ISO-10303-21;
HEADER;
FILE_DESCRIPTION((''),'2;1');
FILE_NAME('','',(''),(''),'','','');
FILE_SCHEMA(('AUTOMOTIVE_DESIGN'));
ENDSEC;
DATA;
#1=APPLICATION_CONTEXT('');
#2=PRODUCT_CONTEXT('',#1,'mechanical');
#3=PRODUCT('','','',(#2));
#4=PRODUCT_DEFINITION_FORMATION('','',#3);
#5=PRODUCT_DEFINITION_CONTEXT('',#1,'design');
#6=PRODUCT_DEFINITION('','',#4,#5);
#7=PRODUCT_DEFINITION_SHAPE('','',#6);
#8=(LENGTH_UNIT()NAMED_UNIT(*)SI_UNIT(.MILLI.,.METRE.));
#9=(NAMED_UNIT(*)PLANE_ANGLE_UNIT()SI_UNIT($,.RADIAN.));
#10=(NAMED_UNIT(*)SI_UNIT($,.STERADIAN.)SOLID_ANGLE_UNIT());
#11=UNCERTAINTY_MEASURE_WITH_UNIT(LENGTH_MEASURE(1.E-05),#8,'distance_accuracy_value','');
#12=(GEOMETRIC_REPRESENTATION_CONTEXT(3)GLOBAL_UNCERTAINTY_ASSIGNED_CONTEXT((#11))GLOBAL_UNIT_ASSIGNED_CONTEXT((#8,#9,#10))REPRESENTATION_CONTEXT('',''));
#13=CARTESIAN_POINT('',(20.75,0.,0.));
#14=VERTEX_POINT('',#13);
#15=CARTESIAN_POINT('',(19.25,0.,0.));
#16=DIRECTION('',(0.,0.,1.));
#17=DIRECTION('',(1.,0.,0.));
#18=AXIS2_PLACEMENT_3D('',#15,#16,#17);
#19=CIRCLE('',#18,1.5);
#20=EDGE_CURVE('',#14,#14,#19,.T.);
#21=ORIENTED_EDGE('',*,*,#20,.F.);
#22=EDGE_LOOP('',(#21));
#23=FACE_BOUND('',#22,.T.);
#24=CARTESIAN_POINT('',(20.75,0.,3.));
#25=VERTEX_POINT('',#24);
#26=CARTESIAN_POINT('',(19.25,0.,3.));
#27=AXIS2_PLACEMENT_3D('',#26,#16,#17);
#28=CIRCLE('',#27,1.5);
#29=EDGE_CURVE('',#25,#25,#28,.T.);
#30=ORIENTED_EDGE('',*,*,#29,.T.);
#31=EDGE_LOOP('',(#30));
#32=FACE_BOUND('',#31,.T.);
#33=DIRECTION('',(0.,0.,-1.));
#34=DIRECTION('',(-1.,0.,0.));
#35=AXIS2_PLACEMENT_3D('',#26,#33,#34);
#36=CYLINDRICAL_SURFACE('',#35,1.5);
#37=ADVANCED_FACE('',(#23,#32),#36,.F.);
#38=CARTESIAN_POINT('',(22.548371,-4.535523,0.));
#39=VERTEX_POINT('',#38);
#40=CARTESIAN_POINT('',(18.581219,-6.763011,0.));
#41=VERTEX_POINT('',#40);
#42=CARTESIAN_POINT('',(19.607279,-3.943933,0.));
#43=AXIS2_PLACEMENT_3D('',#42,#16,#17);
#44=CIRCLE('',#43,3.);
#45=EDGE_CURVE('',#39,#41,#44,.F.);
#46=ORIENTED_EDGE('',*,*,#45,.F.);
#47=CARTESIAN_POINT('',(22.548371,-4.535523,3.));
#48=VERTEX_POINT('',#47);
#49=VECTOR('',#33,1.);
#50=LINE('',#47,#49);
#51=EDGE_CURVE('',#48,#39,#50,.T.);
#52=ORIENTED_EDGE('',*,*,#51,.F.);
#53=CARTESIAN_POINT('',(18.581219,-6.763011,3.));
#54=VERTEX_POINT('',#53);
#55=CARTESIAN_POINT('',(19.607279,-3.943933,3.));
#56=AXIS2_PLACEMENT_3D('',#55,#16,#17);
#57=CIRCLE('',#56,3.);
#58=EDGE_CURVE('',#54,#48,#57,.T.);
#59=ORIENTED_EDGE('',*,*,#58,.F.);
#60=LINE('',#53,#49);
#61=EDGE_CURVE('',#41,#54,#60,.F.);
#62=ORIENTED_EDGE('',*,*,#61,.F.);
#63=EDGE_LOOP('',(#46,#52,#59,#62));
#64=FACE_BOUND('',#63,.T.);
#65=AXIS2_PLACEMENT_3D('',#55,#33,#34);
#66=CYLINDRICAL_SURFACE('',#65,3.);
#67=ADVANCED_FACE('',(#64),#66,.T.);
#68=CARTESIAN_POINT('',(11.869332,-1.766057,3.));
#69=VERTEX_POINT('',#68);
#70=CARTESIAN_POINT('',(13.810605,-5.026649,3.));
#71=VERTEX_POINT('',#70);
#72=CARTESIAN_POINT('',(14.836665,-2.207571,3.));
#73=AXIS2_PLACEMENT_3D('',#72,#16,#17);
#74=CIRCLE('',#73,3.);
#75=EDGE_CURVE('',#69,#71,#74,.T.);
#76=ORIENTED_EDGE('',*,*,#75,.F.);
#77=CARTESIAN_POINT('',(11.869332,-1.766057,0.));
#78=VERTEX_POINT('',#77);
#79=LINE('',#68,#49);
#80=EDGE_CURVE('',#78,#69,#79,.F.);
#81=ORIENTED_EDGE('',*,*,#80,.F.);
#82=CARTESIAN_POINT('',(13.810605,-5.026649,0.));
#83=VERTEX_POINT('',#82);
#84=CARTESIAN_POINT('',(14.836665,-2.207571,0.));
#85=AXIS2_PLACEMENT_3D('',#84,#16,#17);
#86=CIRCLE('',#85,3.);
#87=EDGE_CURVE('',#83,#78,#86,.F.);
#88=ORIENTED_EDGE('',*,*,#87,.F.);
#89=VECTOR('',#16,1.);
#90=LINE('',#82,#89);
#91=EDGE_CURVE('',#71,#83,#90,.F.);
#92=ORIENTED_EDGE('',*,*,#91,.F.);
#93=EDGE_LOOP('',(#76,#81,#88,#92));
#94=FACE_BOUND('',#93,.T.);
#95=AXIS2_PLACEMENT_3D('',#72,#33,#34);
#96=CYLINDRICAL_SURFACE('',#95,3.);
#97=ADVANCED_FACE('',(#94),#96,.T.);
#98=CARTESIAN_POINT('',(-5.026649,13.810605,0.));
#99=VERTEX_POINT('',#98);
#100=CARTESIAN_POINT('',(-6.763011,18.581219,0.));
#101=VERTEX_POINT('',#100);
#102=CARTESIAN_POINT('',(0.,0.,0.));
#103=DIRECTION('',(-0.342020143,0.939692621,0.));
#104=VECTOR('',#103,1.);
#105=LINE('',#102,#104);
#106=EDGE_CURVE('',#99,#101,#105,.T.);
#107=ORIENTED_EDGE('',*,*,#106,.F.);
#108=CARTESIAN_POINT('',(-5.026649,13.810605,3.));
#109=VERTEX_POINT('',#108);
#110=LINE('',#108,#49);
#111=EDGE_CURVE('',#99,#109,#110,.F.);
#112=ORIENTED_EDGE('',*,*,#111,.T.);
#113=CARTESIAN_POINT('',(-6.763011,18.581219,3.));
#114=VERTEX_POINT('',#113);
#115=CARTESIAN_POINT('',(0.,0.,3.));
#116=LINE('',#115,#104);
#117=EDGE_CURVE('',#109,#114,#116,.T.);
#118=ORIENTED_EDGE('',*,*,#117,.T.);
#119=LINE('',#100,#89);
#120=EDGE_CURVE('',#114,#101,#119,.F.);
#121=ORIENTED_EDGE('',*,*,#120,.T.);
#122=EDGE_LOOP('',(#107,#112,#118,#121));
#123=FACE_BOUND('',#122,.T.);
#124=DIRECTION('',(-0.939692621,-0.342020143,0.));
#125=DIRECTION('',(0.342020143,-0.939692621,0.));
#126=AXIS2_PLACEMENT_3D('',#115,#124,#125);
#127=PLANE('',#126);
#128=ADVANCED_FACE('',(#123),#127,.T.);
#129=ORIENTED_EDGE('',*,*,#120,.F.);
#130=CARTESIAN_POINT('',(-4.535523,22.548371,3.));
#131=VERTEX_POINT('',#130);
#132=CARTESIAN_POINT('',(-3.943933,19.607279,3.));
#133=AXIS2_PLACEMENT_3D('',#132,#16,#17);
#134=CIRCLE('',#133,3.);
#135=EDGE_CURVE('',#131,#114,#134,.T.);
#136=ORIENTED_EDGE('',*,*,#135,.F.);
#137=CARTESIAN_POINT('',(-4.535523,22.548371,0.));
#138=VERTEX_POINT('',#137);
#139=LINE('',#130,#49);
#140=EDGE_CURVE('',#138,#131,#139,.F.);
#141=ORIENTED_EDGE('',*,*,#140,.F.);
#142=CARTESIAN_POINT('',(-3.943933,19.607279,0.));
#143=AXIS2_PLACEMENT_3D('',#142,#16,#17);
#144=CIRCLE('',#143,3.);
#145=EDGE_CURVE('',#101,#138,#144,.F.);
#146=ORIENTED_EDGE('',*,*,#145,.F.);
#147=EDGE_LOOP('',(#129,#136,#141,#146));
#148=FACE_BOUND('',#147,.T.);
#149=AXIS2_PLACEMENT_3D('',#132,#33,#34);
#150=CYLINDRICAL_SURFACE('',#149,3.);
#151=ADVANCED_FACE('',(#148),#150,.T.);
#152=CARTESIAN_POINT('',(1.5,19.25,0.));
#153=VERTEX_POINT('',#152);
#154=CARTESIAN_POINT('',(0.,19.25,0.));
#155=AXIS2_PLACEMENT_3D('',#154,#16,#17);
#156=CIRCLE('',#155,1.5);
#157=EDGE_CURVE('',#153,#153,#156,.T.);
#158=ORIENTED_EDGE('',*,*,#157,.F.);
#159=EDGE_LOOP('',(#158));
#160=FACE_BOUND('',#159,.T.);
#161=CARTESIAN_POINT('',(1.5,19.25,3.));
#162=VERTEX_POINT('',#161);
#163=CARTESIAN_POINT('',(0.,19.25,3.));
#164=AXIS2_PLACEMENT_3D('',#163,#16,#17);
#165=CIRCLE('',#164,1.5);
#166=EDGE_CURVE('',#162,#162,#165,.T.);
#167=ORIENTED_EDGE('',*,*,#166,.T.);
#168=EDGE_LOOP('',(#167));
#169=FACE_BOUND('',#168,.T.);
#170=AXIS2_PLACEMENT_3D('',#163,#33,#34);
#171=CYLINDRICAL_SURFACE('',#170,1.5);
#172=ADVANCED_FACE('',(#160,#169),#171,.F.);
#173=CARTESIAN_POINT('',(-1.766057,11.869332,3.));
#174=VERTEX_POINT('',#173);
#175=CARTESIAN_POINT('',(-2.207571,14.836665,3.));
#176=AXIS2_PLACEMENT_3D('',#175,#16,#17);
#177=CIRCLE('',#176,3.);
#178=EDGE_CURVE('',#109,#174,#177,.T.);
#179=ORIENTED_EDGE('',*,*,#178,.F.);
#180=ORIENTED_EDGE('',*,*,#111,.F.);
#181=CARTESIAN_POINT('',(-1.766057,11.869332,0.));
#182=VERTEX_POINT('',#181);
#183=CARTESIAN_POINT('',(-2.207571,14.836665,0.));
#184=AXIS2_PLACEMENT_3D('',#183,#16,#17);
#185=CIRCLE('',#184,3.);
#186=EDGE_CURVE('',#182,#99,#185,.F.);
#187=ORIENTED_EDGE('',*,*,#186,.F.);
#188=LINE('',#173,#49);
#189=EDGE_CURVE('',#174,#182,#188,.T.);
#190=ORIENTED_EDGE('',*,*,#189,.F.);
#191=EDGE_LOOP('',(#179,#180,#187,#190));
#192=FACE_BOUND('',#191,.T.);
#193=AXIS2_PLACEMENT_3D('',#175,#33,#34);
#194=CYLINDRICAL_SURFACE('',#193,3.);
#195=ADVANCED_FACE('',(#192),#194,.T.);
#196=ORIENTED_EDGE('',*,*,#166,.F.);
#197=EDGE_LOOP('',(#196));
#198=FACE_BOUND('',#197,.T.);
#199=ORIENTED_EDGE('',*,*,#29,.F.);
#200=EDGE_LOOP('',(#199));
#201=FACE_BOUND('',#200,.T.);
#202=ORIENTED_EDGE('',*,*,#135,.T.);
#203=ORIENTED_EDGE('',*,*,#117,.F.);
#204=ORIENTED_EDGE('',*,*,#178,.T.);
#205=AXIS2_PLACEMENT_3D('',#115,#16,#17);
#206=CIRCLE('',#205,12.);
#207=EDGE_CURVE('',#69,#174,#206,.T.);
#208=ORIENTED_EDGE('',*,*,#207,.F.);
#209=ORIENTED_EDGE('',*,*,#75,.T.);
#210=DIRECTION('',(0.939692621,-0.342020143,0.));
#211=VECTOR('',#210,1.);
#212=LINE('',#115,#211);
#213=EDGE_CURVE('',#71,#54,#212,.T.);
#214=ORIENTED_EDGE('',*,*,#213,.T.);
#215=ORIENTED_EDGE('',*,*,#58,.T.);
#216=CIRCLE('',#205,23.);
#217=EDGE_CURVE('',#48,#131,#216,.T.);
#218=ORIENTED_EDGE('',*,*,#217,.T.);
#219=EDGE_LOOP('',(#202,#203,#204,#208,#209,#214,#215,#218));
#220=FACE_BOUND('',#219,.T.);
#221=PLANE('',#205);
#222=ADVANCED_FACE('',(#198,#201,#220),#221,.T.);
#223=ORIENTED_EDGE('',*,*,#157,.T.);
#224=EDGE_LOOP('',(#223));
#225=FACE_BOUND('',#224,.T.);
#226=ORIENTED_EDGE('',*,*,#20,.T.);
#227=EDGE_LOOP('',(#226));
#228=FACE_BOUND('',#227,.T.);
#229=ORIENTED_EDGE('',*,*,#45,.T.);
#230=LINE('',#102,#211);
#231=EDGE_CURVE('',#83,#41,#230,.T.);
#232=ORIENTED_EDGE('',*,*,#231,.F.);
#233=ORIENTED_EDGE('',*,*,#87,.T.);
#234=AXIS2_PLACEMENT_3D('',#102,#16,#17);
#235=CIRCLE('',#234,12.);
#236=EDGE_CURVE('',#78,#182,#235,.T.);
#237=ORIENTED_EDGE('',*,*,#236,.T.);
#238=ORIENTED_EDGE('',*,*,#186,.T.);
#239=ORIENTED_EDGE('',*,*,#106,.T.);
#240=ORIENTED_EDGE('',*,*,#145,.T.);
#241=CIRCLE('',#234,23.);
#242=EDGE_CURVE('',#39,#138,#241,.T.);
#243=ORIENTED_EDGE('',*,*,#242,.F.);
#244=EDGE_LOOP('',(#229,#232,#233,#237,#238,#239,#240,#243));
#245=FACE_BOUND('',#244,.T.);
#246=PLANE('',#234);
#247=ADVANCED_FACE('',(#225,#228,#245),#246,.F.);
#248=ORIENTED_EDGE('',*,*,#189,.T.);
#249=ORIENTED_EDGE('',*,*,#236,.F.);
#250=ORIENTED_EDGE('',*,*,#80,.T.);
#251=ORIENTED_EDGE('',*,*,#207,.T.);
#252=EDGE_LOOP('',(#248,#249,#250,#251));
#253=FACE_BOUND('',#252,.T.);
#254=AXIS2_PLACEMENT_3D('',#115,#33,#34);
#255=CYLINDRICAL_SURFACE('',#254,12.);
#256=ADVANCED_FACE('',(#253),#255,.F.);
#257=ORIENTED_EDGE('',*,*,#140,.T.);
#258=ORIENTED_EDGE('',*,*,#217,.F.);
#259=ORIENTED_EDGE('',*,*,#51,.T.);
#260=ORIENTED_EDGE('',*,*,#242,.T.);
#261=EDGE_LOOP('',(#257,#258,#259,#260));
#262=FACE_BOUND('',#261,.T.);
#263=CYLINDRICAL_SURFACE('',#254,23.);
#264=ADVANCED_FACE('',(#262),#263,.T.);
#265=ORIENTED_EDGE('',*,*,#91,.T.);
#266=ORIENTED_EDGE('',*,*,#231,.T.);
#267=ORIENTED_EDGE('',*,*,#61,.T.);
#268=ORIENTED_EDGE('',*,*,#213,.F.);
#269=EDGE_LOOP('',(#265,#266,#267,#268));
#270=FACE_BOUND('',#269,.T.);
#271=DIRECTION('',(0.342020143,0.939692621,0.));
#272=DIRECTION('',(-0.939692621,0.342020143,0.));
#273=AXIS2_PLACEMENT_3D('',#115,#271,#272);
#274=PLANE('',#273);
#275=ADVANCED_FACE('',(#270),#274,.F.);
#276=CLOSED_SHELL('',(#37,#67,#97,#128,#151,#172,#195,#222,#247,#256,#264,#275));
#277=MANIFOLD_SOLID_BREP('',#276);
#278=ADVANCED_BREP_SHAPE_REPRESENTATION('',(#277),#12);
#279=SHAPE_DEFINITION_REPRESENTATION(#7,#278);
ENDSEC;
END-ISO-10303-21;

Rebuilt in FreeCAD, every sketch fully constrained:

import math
import FreeCAD as App
import Part
import Sketcher

V = App.Vector
Q = App.Units.Quantity


def edges_at(feature, points):
    """Names of the edges that pass closest to the given points."""
    edges = feature.Shape.Edges
    near = lambda p: min(range(len(edges)), key=lambda i: edges[i].distToShape(Part.Vertex(*p))[0])
    return sorted({f"Edge{near(p) + 1}" for p in points})

doc = App.newDocument("Part")
body = doc.addObject("PartDesign::Body", "Body")

sketch1 = body.newObject("Sketcher::SketchObject", "Sketch")
sketch1.AttachmentSupport = (doc.getObject("XY_Plane"), [""])
sketch1.MapMode = "FlatFace"
sketch1.addGeometry([
    Part.LineSegment(V(-7.9, 21.6, 0), V(-4.1, 11.3, 0)),
    Part.ArcOfCircle(Part.Circle(V(0, 0, 0), V(0, 0, 1), 12), math.radians(0), math.radians(110)),
    Part.ArcOfCircle(Part.Circle(V(0, 0, 0), V(0, 0, 1), 12), math.radians(-20), math.radians(0)),
    Part.LineSegment(V(11.3, -4.1, 0), V(21.6, -7.9, 0)),
    Part.ArcOfCircle(Part.Circle(V(0, 0, 0), V(0, 0, 1), 23), math.radians(-20), math.radians(0)),
    Part.ArcOfCircle(Part.Circle(V(0, 0, 0), V(0, 0, 1), 23), math.radians(0), math.radians(110)),
    Part.Circle(V(19.2, 0, 0), V(0, 0, 1), 1.5),
    Part.Circle(V(0, 19.2, 0), V(0, 0, 1), 1.5),
], False)
sketch1.addConstraint([
    Sketcher.Constraint("Coincident", 0, 2, 1, 2),
    Sketcher.Constraint("Tangent", 1, 1, 2, 2),
    Sketcher.Constraint("Coincident", 2, 1, 3, 1),
    Sketcher.Constraint("Coincident", 3, 2, 4, 1),
    Sketcher.Constraint("Tangent", 4, 2, 5, 1),
    Sketcher.Constraint("Coincident", 5, 2, 0, 1),
    Sketcher.Constraint("Coincident", 1, 3, -1, 1),
    Sketcher.Constraint("Coincident", 4, 3, -1, 1),
    Sketcher.Constraint("Equal", 1, 2),
    Sketcher.Constraint("Equal", 4, 5),
    Sketcher.Constraint("Equal", 6, 7),
    Sketcher.Constraint("PointOnObject", 6, 3, -1),
    Sketcher.Constraint("PointOnObject", 7, 3, -2),
    Sketcher.Constraint("PointOnObject", 1, 1, -1),
    Sketcher.Constraint("PointOnObject", 4, 2, -1),
    Sketcher.Constraint("Diameter", 6, 3.0),
    Sketcher.Constraint("Radius", 1, 12.0),
    Sketcher.Constraint("Radius", 4, 23.0),
    Sketcher.Constraint("Angle", 0, Q("-70 deg")),
    Sketcher.Constraint("Angle", 3, Q("-20 deg")),
    Sketcher.Constraint("DistanceX", -1, 1, 6, 3, 19.25),
    Sketcher.Constraint("DistanceY", -1, 1, 7, 3, 19.25),
    Sketcher.Constraint("DistanceX", 0, 2, -1, 1, 4.104242),
    Sketcher.Constraint("DistanceX", -1, 1, 2, 1, 11.276311),
])
pad1 = body.newObject("PartDesign::Pad", "Pad")
pad1.Profile = sketch1
pad1.Length = 3
doc.recompute()

fillet = body.newObject("PartDesign::Fillet", "Fillet")
fillet.Base = (pad1, edges_at(pad1, [
    (11.276, -4.104, 1.5),
    (-4.104, 11.276, 1.5),
    (-7.866, 21.613, 1.5),
    (21.613, -7.866, 1.5),
]))
fillet.Radius = 3

doc.recompute()
